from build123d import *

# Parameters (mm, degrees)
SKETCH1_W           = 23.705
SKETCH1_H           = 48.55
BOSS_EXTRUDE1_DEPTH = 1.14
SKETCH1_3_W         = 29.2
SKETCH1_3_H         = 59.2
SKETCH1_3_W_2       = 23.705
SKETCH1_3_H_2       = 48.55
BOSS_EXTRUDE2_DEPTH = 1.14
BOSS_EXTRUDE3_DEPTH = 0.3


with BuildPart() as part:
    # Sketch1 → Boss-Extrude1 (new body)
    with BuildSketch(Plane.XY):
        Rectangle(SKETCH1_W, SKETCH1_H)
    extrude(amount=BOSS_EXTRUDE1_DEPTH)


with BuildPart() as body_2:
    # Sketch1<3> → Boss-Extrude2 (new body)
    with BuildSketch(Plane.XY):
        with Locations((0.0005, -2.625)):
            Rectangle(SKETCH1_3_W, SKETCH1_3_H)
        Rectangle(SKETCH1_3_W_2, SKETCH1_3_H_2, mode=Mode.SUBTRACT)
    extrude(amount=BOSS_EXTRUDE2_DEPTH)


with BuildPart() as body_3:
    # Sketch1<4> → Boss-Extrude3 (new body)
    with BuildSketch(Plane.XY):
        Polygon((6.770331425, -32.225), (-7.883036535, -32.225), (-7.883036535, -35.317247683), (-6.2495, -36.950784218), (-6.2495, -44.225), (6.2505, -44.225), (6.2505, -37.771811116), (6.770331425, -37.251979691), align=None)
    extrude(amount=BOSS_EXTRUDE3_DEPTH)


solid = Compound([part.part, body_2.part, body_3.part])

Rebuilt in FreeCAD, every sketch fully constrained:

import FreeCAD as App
import Part
import Sketcher
Q = App.Units.Quantity


def add_polygon(sketch, points):
    """Adds a closed chain of lines whose ends are joined by coincident constraints."""
    first, n = sketch.GeometryCount, len(points)
    for a, b in zip(points, points[1:] + points[:1]):
        sketch.addGeometry(Part.LineSegment(App.Vector(*a, 0), App.Vector(*b, 0)), False)
    for i in range(n):
        sketch.addConstraint(Sketcher.Constraint("Coincident", first + i, 2, first + (i + 1) % n, 1))

doc = App.newDocument("Part")
body = doc.addObject("PartDesign::Body", "Body")

# Sketch on XY plane
sketch1 = body.newObject("Sketcher::SketchObject", "Sketch")
sketch1.AttachmentSupport = (doc.getObject("XY_Plane"), [""])
sketch1.MapMode = "FlatFace"
add_polygon(sketch1, [(-12, 24), (-12, -24), (12, -24), (12, 24)])  # lines 0-3
sketch1.addConstraint([
    Sketcher.Constraint("Vertical", 0),
    Sketcher.Constraint("Horizontal", 1),
    Sketcher.Constraint("Vertical", 2),
    Sketcher.Constraint("Horizontal", 3),
    Sketcher.Constraint("Symmetric", 0, 2, 2, 2, -1, 1),
    Sketcher.Constraint("DistanceY", 0, 2, 0, 1, Q("48.55 mm")),
    Sketcher.Constraint("DistanceX", 1, 1, 1, 2, Q("23.705 mm")),
])
pad1 = body.newObject("PartDesign::Pad", "Pad")
pad1.Profile = sketch1
pad1.Length = 1.14
body2 = doc.addObject("PartDesign::Body", "Body001")

# Sketch on XY plane
sketch2 = body2.newObject("Sketcher::SketchObject", "Sketch001")
sketch2.AttachmentSupport = (doc.getObject("XY_Plane001"), [""])
sketch2.MapMode = "FlatFace"
add_polygon(sketch2, [(-15, 27), (-15, -32), (15, -32), (15, 27)])  # lines 0-3
add_polygon(sketch2, [(12, -24), (-12, -24), (-12, 24), (12, 24)])  # lines 4-7
sketch2.addConstraint([
    Sketcher.Constraint("Vertical", 0),
    Sketcher.Constraint("Horizontal", 1),
    Sketcher.Constraint("Vertical", 2),
    Sketcher.Constraint("Horizontal", 3),
    Sketcher.Constraint("Horizontal", 4),
    Sketcher.Constraint("Vertical", 5),
    Sketcher.Constraint("Horizontal", 6),
    Sketcher.Constraint("Vertical", 7),
    Sketcher.Constraint("Symmetric", 4, 2, 6, 2, -1, 1),
    Sketcher.Constraint("DistanceX", 1, 1, 1, 2, Q("29.2 mm")),
    Sketcher.Constraint("DistanceY", 0, 2, 0, 1, Q("59.2 mm")),
    Sketcher.Constraint("DistanceY", 5, 1, 5, 2, Q("48.55 mm")),
    Sketcher.Constraint("DistanceY", 5, 2, 3, 2, Q("2.7 mm")),
    Sketcher.Constraint("DistanceX", 4, 2, 4, 1, Q("23.705 mm")),
    Sketcher.Constraint("DistanceX", 0, 2, 4, 2, Q("2.747 mm")),
])
pad2 = body2.newObject("PartDesign::Pad", "Pad001")
pad2.Profile = sketch2
pad2.Length = 1.14
body3 = doc.addObject("PartDesign::Body", "Body002")

# Sketch on XY plane
sketch3 = body3.newObject("Sketcher::SketchObject", "Sketch002")
sketch3.AttachmentSupport = (doc.getObject("XY_Plane002"), [""])
sketch3.MapMode = "FlatFace"
add_polygon(sketch3, [(6.8, -32.2), (-7.9, -32.2), (-7.9, -35.3), (-6.2, -37), (-6.2, -44.2), (6.3, -44.2), (6.3, -37.8), (6.8, -37.3)])  # lines 0-7
sketch3.addConstraint([
    Sketcher.Constraint("Horizontal", 0),
    Sketcher.Constraint("Vertical", 1),
    Sketcher.Constraint("Vertical", 3),
    Sketcher.Constraint("Horizontal", 4),
    Sketcher.Constraint("Vertical", 5),
    Sketcher.Constraint("Vertical", 7),
    Sketcher.Constraint("Perpendicular", 2, 6),
    Sketcher.Constraint("Angle", 2, Q("-45 deg")),
    Sketcher.Constraint("DistanceX", 4, 1, 4, 2, Q("12.5 mm")),
    Sketcher.Constraint("DistanceY", 3, 2, 0, 2, Q("12 mm")),
    Sketcher.Constraint("DistanceY", 0, 2, -1, 1, Q("32.225 mm")),
    Sketcher.Constraint("DistanceY", 5, 1, 5, 2, Q("6.453189 mm")),
    Sketcher.Constraint("DistanceY", 7, 1, 7, 2, Q("5.02698 mm")),
    Sketcher.Constraint("DistanceX", 2, 2, -1, 1, Q("6.2495 mm")),
    Sketcher.Constraint("Distance", 2, Q("2.31017 mm")),
    Sketcher.Constraint("DistanceY", 1, 2, 1, 1, Q("3.092248 mm")),
])
pad3 = body3.newObject("PartDesign::Pad", "Pad002")
pad3.Profile = sketch3
pad3.Length = 0.3

doc.recompute()
